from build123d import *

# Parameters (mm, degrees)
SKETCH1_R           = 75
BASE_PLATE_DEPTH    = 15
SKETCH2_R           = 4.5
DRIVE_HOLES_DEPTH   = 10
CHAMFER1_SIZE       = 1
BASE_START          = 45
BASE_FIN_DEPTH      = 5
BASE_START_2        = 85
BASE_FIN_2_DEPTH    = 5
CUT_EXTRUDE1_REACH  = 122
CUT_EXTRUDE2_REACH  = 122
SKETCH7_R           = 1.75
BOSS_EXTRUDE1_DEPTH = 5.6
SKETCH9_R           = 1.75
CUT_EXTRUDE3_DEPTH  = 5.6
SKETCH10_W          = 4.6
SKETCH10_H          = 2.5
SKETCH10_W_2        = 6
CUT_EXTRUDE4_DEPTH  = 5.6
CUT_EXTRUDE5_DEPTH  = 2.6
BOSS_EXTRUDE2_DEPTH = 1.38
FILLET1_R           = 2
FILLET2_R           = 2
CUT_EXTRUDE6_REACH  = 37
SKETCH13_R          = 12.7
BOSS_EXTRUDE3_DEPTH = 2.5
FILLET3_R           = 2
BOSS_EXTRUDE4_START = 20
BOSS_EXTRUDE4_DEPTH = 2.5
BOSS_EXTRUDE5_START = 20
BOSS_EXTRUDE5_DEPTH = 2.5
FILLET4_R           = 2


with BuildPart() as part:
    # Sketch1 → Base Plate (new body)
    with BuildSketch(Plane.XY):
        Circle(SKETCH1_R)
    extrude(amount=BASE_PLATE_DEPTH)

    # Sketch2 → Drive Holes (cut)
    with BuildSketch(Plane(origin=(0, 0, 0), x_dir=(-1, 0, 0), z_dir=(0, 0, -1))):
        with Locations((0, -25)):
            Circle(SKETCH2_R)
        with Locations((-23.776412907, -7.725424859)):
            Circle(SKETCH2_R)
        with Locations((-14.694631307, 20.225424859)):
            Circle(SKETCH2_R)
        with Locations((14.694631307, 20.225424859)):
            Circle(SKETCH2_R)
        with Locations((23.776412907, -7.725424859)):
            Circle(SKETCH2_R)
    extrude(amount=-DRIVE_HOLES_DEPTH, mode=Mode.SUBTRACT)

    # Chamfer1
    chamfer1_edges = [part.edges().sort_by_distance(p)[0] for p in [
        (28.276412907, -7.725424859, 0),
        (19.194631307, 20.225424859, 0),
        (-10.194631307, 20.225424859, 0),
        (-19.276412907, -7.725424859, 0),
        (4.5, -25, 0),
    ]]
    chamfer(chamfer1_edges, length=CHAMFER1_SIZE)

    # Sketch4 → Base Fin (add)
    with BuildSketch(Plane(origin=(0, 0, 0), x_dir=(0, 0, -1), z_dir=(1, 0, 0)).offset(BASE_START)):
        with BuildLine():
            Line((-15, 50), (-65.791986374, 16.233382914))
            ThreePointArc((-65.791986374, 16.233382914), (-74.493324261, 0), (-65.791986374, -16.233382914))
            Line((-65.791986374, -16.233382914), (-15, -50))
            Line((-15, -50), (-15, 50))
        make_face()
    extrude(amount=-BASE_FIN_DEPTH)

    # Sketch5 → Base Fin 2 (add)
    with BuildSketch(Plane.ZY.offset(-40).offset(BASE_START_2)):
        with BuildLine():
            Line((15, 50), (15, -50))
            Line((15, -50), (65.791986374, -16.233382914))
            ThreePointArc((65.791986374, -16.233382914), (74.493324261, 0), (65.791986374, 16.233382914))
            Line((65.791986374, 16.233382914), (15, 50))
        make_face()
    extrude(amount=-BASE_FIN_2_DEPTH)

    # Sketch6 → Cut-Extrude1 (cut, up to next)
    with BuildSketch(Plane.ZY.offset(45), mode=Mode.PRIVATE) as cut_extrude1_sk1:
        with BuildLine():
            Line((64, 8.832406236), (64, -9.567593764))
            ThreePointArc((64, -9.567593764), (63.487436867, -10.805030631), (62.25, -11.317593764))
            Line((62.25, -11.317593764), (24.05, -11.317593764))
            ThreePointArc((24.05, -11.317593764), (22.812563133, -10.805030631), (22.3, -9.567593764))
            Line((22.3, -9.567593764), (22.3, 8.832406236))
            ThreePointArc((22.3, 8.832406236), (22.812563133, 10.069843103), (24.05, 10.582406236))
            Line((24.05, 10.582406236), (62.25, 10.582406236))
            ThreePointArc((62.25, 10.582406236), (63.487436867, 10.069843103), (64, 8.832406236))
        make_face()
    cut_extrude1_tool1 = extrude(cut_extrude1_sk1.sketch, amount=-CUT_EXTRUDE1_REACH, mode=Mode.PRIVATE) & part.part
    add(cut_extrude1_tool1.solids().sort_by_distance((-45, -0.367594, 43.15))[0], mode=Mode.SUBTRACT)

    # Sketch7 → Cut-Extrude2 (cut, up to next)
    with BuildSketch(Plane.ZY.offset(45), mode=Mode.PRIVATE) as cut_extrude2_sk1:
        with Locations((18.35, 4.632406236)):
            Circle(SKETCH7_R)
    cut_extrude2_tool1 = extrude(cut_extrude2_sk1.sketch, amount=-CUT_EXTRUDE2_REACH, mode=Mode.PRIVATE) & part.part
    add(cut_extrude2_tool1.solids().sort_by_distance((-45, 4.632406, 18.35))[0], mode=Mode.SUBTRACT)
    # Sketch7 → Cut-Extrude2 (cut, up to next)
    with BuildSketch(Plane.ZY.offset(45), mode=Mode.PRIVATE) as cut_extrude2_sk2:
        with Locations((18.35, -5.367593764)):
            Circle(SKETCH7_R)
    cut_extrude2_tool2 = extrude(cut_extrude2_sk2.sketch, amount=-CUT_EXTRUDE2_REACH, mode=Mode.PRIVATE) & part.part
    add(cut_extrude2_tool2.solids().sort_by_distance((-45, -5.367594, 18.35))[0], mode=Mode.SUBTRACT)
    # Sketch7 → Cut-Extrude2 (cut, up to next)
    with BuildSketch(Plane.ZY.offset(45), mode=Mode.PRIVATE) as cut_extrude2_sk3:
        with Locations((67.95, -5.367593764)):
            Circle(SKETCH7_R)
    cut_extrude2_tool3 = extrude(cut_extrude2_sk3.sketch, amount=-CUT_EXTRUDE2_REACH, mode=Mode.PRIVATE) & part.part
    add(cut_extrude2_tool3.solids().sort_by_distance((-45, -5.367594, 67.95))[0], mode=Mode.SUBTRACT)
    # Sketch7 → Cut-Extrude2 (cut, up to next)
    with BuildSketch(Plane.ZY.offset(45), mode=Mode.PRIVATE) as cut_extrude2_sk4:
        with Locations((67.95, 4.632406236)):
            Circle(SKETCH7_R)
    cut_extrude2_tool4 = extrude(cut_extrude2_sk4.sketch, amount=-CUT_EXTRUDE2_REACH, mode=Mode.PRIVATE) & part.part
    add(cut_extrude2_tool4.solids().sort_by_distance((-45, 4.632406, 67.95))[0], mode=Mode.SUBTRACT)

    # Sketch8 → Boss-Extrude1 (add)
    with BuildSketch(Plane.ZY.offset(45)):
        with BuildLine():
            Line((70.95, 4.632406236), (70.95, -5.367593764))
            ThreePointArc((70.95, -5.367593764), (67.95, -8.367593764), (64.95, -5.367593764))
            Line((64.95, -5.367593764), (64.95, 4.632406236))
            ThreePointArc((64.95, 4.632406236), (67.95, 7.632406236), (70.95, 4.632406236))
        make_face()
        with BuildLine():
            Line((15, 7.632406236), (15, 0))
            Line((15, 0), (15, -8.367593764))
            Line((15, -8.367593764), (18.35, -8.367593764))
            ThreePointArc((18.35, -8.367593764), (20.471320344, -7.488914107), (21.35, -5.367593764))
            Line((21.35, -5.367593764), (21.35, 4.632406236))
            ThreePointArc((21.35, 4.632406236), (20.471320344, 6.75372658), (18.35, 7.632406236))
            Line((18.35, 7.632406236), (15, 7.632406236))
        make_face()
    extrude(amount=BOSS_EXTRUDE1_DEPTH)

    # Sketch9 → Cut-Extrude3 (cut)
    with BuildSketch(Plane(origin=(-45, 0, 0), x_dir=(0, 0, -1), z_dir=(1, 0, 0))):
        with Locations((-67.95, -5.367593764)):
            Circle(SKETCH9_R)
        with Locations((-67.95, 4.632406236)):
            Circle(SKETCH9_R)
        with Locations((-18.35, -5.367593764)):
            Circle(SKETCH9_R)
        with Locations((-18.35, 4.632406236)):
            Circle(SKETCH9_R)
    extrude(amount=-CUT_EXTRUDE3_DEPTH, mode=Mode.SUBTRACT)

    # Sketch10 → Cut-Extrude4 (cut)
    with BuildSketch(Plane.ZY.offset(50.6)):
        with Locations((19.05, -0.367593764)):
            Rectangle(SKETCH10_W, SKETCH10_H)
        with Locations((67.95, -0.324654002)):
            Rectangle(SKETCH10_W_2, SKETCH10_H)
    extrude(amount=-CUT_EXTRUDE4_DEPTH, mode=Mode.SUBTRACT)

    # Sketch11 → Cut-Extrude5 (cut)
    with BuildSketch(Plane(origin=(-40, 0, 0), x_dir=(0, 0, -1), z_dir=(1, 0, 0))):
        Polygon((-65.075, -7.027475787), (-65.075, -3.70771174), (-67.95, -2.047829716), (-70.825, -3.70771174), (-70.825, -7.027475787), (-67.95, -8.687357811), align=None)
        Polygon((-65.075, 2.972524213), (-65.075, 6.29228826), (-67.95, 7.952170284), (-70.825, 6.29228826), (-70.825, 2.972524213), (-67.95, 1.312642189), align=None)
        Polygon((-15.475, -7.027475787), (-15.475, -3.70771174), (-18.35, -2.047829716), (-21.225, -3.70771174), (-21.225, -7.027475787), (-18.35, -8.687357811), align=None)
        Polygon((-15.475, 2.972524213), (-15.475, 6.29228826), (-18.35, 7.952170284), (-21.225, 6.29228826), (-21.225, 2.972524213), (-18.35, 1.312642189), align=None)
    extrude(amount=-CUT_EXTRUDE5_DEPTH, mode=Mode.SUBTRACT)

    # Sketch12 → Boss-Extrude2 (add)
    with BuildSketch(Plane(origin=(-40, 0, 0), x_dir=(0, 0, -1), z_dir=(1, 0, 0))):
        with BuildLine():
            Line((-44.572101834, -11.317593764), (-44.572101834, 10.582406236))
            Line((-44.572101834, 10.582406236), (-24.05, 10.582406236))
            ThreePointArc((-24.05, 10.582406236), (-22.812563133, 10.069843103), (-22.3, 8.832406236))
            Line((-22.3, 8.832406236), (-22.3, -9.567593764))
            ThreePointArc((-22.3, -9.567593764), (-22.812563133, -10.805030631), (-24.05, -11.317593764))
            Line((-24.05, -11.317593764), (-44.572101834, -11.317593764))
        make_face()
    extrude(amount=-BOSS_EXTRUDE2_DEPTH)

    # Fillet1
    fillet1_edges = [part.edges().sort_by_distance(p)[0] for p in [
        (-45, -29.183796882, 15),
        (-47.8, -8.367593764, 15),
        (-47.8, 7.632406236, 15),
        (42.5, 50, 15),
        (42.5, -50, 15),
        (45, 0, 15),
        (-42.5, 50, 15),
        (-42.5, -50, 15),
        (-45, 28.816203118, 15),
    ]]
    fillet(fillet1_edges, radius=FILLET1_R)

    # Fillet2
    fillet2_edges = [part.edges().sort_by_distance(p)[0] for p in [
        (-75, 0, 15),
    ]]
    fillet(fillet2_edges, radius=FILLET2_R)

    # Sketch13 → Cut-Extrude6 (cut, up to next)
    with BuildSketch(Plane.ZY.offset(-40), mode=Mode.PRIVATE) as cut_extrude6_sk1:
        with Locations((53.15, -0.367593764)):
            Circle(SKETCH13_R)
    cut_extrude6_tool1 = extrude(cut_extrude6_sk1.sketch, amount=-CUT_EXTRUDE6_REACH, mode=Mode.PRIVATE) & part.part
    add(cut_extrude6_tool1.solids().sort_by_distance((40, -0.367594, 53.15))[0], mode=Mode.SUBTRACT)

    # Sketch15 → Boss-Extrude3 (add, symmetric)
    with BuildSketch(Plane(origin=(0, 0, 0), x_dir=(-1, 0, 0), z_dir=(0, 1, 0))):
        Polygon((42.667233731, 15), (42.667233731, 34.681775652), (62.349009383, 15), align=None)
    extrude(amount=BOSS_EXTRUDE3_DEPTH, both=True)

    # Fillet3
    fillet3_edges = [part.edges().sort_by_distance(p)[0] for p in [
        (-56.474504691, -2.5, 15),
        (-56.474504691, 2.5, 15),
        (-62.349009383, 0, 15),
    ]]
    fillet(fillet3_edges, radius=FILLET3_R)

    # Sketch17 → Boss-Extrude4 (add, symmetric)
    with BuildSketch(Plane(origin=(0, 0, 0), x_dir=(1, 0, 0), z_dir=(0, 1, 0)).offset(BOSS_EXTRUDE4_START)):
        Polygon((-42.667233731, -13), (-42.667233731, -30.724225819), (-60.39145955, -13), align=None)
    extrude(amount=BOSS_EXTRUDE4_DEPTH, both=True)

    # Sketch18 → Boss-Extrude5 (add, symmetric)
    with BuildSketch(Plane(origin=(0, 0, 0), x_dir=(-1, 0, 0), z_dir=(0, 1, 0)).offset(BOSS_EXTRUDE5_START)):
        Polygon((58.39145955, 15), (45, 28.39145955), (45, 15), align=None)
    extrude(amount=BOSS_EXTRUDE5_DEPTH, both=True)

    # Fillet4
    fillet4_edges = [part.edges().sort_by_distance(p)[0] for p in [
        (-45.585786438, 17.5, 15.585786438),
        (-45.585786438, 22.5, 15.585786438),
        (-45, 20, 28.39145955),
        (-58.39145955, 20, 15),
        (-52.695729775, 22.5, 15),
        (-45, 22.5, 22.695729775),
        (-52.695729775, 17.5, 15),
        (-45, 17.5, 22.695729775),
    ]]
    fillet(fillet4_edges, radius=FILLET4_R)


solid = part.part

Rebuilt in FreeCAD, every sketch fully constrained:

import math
import FreeCAD as App
import Part
import Sketcher

V = App.Vector
Q = App.Units.Quantity


def edges_at(feature, points):
    """Names of the edges that pass closest to the given points."""
    edges = feature.Shape.Edges
    near = lambda p: min(range(len(edges)), key=lambda i: edges[i].distToShape(Part.Vertex(*p))[0])
    return sorted({f"Edge{near(p) + 1}" for p in points})

doc = App.newDocument("Part")
body = doc.addObject("PartDesign::Body", "Body")

sketch1 = body.newObject("Sketcher::SketchObject", "Sketch")
sketch1.AttachmentSupport = (doc.getObject("XY_Plane"), [""])
sketch1.MapMode = "FlatFace"
sketch1.addGeometry(Part.Circle(V(0, 0, 0), V(0, 0, 1), 75), False)
sketch1.addConstraint([
    Sketcher.Constraint("Coincident", 0, 3, -1, 1),
    Sketcher.Constraint("Diameter", 0, 150.0),
])
pad1 = body.newObject("PartDesign::Pad", "Pad")
pad1.Profile = sketch1
pad1.Length = 15

sketch2 = body.newObject("Sketcher::SketchObject", "Sketch001")
sketch2.AttachmentSupport = (doc.getObject("XY_Plane"), [""])
sketch2.MapMode = "FlatFace"
sketch2.addGeometry([
    Part.Circle(V(0, -25, 0), V(0, 0, 1), 4.5),
    Part.Circle(V(23.8, -7.7, 0), V(0, 0, 1), 4.5),
    Part.Circle(V(14.7, 20.2, 0), V(0, 0, 1), 4.5),
    Part.Circle(V(-14.7, 20.2, 0), V(0, 0, 1), 4.5),
    Part.Circle(V(-23.8, -7.7, 0), V(0, 0, 1), 4.5),
], False)
sketch2.addConstraint([
    Sketcher.Constraint("Equal", 0, 1),
    Sketcher.Constraint("Equal", 1, 2),
    Sketcher.Constraint("Equal", 2, 3),
    Sketcher.Constraint("Equal", 3, 4),
    Sketcher.Constraint("Symmetric", 2, 3, 3, 3, -2),
    Sketcher.Constraint("Symmetric", 1, 3, 4, 3, -2),
    Sketcher.Constraint("PointOnObject", 0, 3, -2),
    Sketcher.Constraint("Diameter", 0, 9.0),
    Sketcher.Constraint("DistanceY", 0, 3, -1, 1, 25.0),
    Sketcher.Constraint("DistanceX", -1, 1, 2, 3, 14.694631),
    Sketcher.Constraint("DistanceX", 2, 3, 1, 3, 9.081782),
    Sketcher.Constraint("DistanceY", 1, 3, 2, 3, 27.95085),
    Sketcher.Constraint("DistanceY", 1, 3, -1, 1, 7.725425),
])
pocket1 = body.newObject("PartDesign::Pocket", "Pocket")
pocket1.Profile = sketch2
pocket1.Length = 10
pocket1.Reversed = True
doc.recompute()

chamfer = body.newObject("PartDesign::Chamfer", "Chamfer")
chamfer.Base = (pocket1, edges_at(pocket1, [
    (28.276, -7.725, 0),
    (19.195, 20.225, 0),
    (-10.195, 20.225, 0),
    (-19.276, -7.725, 0),
    (4.5, -25, 0),
]))
chamfer.Size = 1

sketch3 = body.newObject("Sketcher::SketchObject", "Sketch002")
sketch3.AttachmentSupport = (doc.getObject("YZ_Plane"), [""])
sketch3.MapMode = "FlatFace"
sketch3.AttachmentOffset = App.Placement(V(0, 0, 45), App.Rotation())
sketch3.addGeometry([
    Part.LineSegment(V(50, 15, 0), V(16, 66, 0)),
    Part.ArcOfCircle(Part.Circle(V(0, 55, 0), V(0, 0, 1), 19), math.radians(34), math.radians(146)),
    Part.LineSegment(V(-16, 66, 0), V(-50, 15, 0)),
    Part.LineSegment(V(-50, 15, 0), V(50, 15, 0)),
], False)
sketch3.addConstraint([
    Sketcher.Constraint("Tangent", 0, 2, 1, 1),
    Sketcher.Constraint("Tangent", 1, 2, 2, 1),
    Sketcher.Constraint("Coincident", 2, 2, 3, 1),
    Sketcher.Constraint("Coincident", 3, 2, 0, 1),
    Sketcher.Constraint("Horizontal", 3),
    Sketcher.Constraint("Symmetric", 0, 2, 1, 2, -2),
    Sketcher.Constraint("DistanceX", 3, 1, 3, 2, 100.0),
    Sketcher.Constraint("DistanceY", -1, 1, 1, 3, 55.0),
    Sketcher.Constraint("DistanceY", -1, 1, 2, 2, 15.0),
    Sketcher.Constraint("Radius", 1, 19.493324),
])
pad2 = body.newObject("PartDesign::Pad", "Pad001")
pad2.Profile = sketch3
pad2.Length = 5
pad2.Reversed = True

sketch4 = body.newObject("Sketcher::SketchObject", "Sketch003")
sketch4.AttachmentSupport = (doc.getObject("YZ_Plane"), [""])
sketch4.MapMode = "FlatFace"
sketch4.AttachmentOffset = App.Placement(V(0, 0, -45), App.Rotation())
sketch4.addGeometry([
    Part.LineSegment(V(50, 15, 0), V(-50, 15, 0)),
    Part.LineSegment(V(-50, 15, 0), V(-16, 66, 0)),
    Part.ArcOfCircle(Part.Circle(V(0, 55, 0), V(0, 0, 1), 19), math.radians(34), math.radians(146)),
    Part.LineSegment(V(16, 66, 0), V(50, 15, 0)),
], False)
sketch4.addConstraint([
    Sketcher.Constraint("Coincident", 0, 2, 1, 1),
    Sketcher.Constraint("Tangent", 1, 2, 2, 2),
    Sketcher.Constraint("Tangent", 2, 1, 3, 1),
    Sketcher.Constraint("Coincident", 3, 2, 0, 1),
    Sketcher.Constraint("Horizontal", 0),
    Sketcher.Constraint("Symmetric", 1, 2, 2, 1, -2),
    Sketcher.Constraint("DistanceX", 0, 2, 0, 1, 100.0),
    Sketcher.Constraint("DistanceY", -1, 1, 2, 3, 55.0),
    Sketcher.Constraint("DistanceY", -1, 1, 0, 2, 15.0),
    Sketcher.Constraint("Radius", 2, 19.493324),
])
pad3 = body.newObject("PartDesign::Pad", "Pad002")
pad3.Profile = sketch4
pad3.Length = 5

sketch5 = body.newObject("Sketcher::SketchObject", "Sketch004")
sketch5.AttachmentSupport = (doc.getObject("YZ_Plane"), [""])
sketch5.MapMode = "FlatFace"
sketch5.AttachmentOffset = App.Placement(V(0, 0, -45), App.Rotation())
sketch5.addGeometry([
    Part.LineSegment(V(-9.6, 64, 0), V(8.8, 64, 0)),
    Part.ArcOfCircle(Part.Circle(V(8.8, 62.2, 0), V(0, 0, 1), 1.8), math.radians(0), math.radians(90)),
    Part.LineSegment(V(10.6, 62.2, 0), V(10.6, 24.1, 0)),
    Part.ArcOfCircle(Part.Circle(V(8.8, 24.1, 0), V(0, 0, 1), 1.8), math.radians(-90), math.radians(0)),
    Part.LineSegment(V(8.8, 22.3, 0), V(-9.6, 22.3, 0)),
    Part.ArcOfCircle(Part.Circle(V(-9.6, 24.1, 0), V(0, 0, 1), 1.8), math.radians(180), math.radians(270)),
    Part.LineSegment(V(-11.3, 24.1, 0), V(-11.3, 62.2, 0)),
    Part.ArcOfCircle(Part.Circle(V(-9.6, 62.2, 0), V(0, 0, 1), 1.8), math.radians(90), math.radians(180)),
], False)
sketch5.addConstraint([
    Sketcher.Constraint("Tangent", 0, 2, 1, 2),
    Sketcher.Constraint("Tangent", 1, 1, 2, 1),
    Sketcher.Constraint("Tangent", 2, 2, 3, 2),
    Sketcher.Constraint("Tangent", 3, 1, 4, 1),
    Sketcher.Constraint("Tangent", 4, 2, 5, 2),
    Sketcher.Constraint("Tangent", 5, 1, 6, 1),
    Sketcher.Constraint("Tangent", 6, 2, 7, 2),
    Sketcher.Constraint("Tangent", 7, 1, 0, 1),
    Sketcher.Constraint("Horizontal", 0),
    Sketcher.Constraint("Vertical", 2),
    Sketcher.Constraint("Horizontal", 4),
    Sketcher.Constraint("Vertical", 6),
    Sketcher.Constraint("Equal", 1, 3),
    Sketcher.Constraint("Equal", 3, 5),
    Sketcher.Constraint("Equal", 5, 7),
    Sketcher.Constraint("Radius", 1, 1.75),
    Sketcher.Constraint("DistanceX", 0, 1, 0, 2, 18.4),
    Sketcher.Constraint("DistanceY", 2, 2, 2, 1, 38.2),
    Sketcher.Constraint("DistanceY", -1, 1, 0, 2, 64.0),
    Sketcher.Constraint("DistanceX", -1, 1, 1, 3, 8.832406),
])
pocket2 = body.newObject("PartDesign::Pocket", "Pocket001")
pocket2.Profile = sketch5
pocket2.Type = "UpToFirst"
pocket2.Reversed = True

sketch6 = body.newObject("Sketcher::SketchObject", "Sketch005")
sketch6.AttachmentSupport = (doc.getObject("YZ_Plane"), [""])
sketch6.MapMode = "FlatFace"
sketch6.AttachmentOffset = App.Placement(V(0, 0, -45), App.Rotation())
sketch6.addGeometry(Part.Circle(V(4.6, 18.4, 0), V(0, 0, 1), 1.8), False)
sketch6.addConstraint([
    Sketcher.Constraint("Diameter", 0, 3.5),
    Sketcher.Constraint("DistanceY", -1, 1, 0, 3, 18.35),
    Sketcher.Constraint("DistanceX", -1, 1, 0, 3, 4.632406),
])
pocket3 = body.newObject("PartDesign::Pocket", "Pocket002")
pocket3.Profile = sketch6
pocket3.Type = "UpToFirst"
pocket3.Reversed = True

sketch7 = body.newObject("Sketcher::SketchObject", "Sketch006")
sketch7.AttachmentSupport = (doc.getObject("YZ_Plane"), [""])
sketch7.MapMode = "FlatFace"
sketch7.AttachmentOffset = App.Placement(V(0, 0, -45), App.Rotation())
sketch7.addGeometry(Part.Circle(V(-5.4, 18.4, 0), V(0, 0, 1), 1.8), False)
sketch7.addConstraint([
    Sketcher.Constraint("Diameter", 0, 3.5),
    Sketcher.Constraint("DistanceY", -1, 1, 0, 3, 18.35),
    Sketcher.Constraint("DistanceX", 0, 3, -1, 1, 5.367594),
])
pocket4 = body.newObject("PartDesign::Pocket", "Pocket003")
pocket4.Profile = sketch7
pocket4.Type = "UpToFirst"
pocket4.Reversed = True

sketch8 = body.newObject("Sketcher::SketchObject", "Sketch007")
sketch8.AttachmentSupport = (doc.getObject("YZ_Plane"), [""])
sketch8.MapMode = "FlatFace"
sketch8.AttachmentOffset = App.Placement(V(0, 0, -45), App.Rotation())
sketch8.addGeometry(Part.Circle(V(-5.4, 68, 0), V(0, 0, 1), 1.8), False)
sketch8.addConstraint([
    Sketcher.Constraint("Diameter", 0, 3.5),
    Sketcher.Constraint("DistanceY", -1, 1, 0, 3, 67.95),
    Sketcher.Constraint("DistanceX", 0, 3, -1, 1, 5.367594),
])
pocket5 = body.newObject("PartDesign::Pocket", "Pocket004")
pocket5.Profile = sketch8
pocket5.Type = "UpToFirst"
pocket5.Reversed = True

sketch9 = body.newObject("Sketcher::SketchObject", "Sketch008")
sketch9.AttachmentSupport = (doc.getObject("YZ_Plane"), [""])
sketch9.MapMode = "FlatFace"
sketch9.AttachmentOffset = App.Placement(V(0, 0, -45), App.Rotation())
sketch9.addGeometry(Part.Circle(V(4.6, 68, 0), V(0, 0, 1), 1.8), False)
sketch9.addConstraint([
    Sketcher.Constraint("Diameter", 0, 3.5),
    Sketcher.Constraint("DistanceY", -1, 1, 0, 3, 67.95),
    Sketcher.Constraint("DistanceX", -1, 1, 0, 3, 4.632406),
])
pocket6 = body.newObject("PartDesign::Pocket", "Pocket005")
pocket6.Profile = sketch9
pocket6.Type = "UpToFirst"
pocket6.Reversed = True

sketch10 = body.newObject("Sketcher::SketchObject", "Sketch009")
sketch10.AttachmentSupport = (doc.getObject("YZ_Plane"), [""])
sketch10.MapMode = "FlatFace"
sketch10.AttachmentOffset = App.Placement(V(0, 0, -45), App.Rotation())
sketch10.addGeometry([
    Part.LineSegment(V(-5.4, 71, 0), V(4.6, 71, 0)),
    Part.ArcOfCircle(Part.Circle(V(4.6, 68, 0), V(0, 0, 1), 3), math.radians(-90), math.radians(90)),
    Part.LineSegment(V(4.6, 65, 0), V(-5.4, 65, 0)),
    Part.ArcOfCircle(Part.Circle(V(-5.4, 68, 0), V(0, 0, 1), 3), math.radians(90), math.radians(270)),
    Part.LineSegment(V(7.6, 15, 0), V(-8.4, 15, 0)),
    Part.LineSegment(V(-8.4, 15, 0), V(-8.4, 18.4, 0)),
    Part.ArcOfCircle(Part.Circle(V(-5.4, 18.4, 0), V(0, 0, 1), 3), math.radians(90), math.radians(180)),
    Part.LineSegment(V(-5.4, 21.4, 0), V(4.6, 21.4, 0)),
    Part.ArcOfCircle(Part.Circle(V(4.6, 18.4, 0), V(0, 0, 1), 3), math.radians(0), math.radians(90)),
    Part.LineSegment(V(7.6, 18.4, 0), V(7.6, 15, 0)),
], False)
sketch10.addConstraint([
    Sketcher.Constraint("Tangent", 0, 2, 1, 2),
    Sketcher.Constraint("Tangent", 1, 1, 2, 1),
    Sketcher.Constraint("Tangent", 2, 2, 3, 2),
    Sketcher.Constraint("Tangent", 3, 1, 0, 1),
    Sketcher.Constraint("Coincident", 4, 2, 5, 1),
    Sketcher.Constraint("Tangent", 5, 2, 6, 2),
    Sketcher.Constraint("Tangent", 6, 1, 7, 1),
    Sketcher.Constraint("Tangent", 7, 2, 8, 2),
    Sketcher.Constraint("Tangent", 8, 1, 9, 1),
    Sketcher.Constraint("Coincident", 9, 2, 4, 1),
    Sketcher.Constraint("Horizontal", 0),
    Sketcher.Constraint("Horizontal", 2),
    Sketcher.Constraint("Horizontal", 4),
    Sketcher.Constraint("Vertical", 5),
    Sketcher.Constraint("Horizontal", 7),
    Sketcher.Constraint("Vertical", 9),
    Sketcher.Constraint("Equal", 3, 6),
    Sketcher.Constraint("Equal", 6, 8),
    Sketcher.Constraint("Vertical", 3, 3, 6, 3),
    Sketcher.Constraint("Vertical", 1, 3, 8, 3),
    Sketcher.Constraint("Radius", 1, 3.0),
    Sketcher.Constraint("DistanceX", 0, 1, 0, 2, 10.0),
    Sketcher.Constraint("DistanceY", -1, 1, 4, 2, 15.0),
    Sketcher.Constraint("DistanceY", 5, 1, 5, 2, 3.35),
    Sketcher.Constraint("DistanceY", 6, 3, 3, 3, 49.6),
    Sketcher.Constraint("DistanceX", -1, 1, 1, 3, 4.632406),
])
pad4 = body.newObject("PartDesign::Pad", "Pad003")
pad4.Profile = sketch10
pad4.Length = 5.6
pad4.Reversed = True

sketch11 = body.newObject("Sketcher::SketchObject", "Sketch010")
sketch11.AttachmentSupport = (doc.getObject("YZ_Plane"), [""])
sketch11.MapMode = "FlatFace"
sketch11.AttachmentOffset = App.Placement(V(0, 0, -45), App.Rotation())
sketch11.addGeometry([
    Part.Circle(V(-5.4, 68, 0), V(0, 0, 1), 1.8),
    Part.Circle(V(4.6, 68, 0), V(0, 0, 1), 1.8),
    Part.Circle(V(-5.4, 18.4, 0), V(0, 0, 1), 1.8),
    Part.Circle(V(4.6, 18.4, 0), V(0, 0, 1), 1.8),
], False)
sketch11.addConstraint([
    Sketcher.Constraint("Equal", 0, 1),
    Sketcher.Constraint("Equal", 1, 2),
    Sketcher.Constraint("Equal", 2, 3),
    Sketcher.Constraint("Horizontal", 0, 3, 1, 3),
    Sketcher.Constraint("Horizontal", 2, 3, 3, 3),
    Sketcher.Constraint("Vertical", 0, 3, 2, 3),
    Sketcher.Constraint("Vertical", 1, 3, 3, 3),
    Sketcher.Constraint("Diameter", 0, 3.5),
    Sketcher.Constraint("DistanceX", 0, 3, 1, 3, 10.0),
    Sketcher.Constraint("DistanceY", 2, 3, 0, 3, 49.6),
    Sketcher.Constraint("DistanceY", -1, 1, 0, 3, 67.95),
    Sketcher.Constraint("DistanceX", 0, 3, -1, 1, 5.367594),
])
pocket7 = body.newObject("PartDesign::Pocket", "Pocket006")
pocket7.Profile = sketch11
pocket7.Length = 5.6

sketch12 = body.newObject("Sketcher::SketchObject", "Sketch011")
sketch12.AttachmentSupport = (doc.getObject("YZ_Plane"), [""])
sketch12.MapMode = "FlatFace"
sketch12.AttachmentOffset = App.Placement(V(0, 0, -50.6), App.Rotation())
sketch12.addGeometry([
    Part.LineSegment(V(0.9, 16.8, 0), V(-1.6, 16.8, 0)),
    Part.LineSegment(V(-1.6, 16.8, 0), V(-1.6, 21.4, 0)),
    Part.LineSegment(V(-1.6, 21.4, 0), V(0.9, 21.4, 0)),
    Part.LineSegment(V(0.9, 21.4, 0), V(0.9, 16.8, 0)),
    Part.LineSegment(V(0.9, 65, 0), V(-1.6, 65, 0)),
    Part.LineSegment(V(-1.6, 65, 0), V(-1.6, 71, 0)),
    Part.LineSegment(V(-1.6, 71, 0), V(0.9, 71, 0)),
    Part.LineSegment(V(0.9, 71, 0), V(0.9, 65, 0)),
], False)
sketch12.addConstraint([
    Sketcher.Constraint("Coincident", 0, 2, 1, 1),
    Sketcher.Constraint("Coincident", 1, 2, 2, 1),
    Sketcher.Constraint("Coincident", 2, 2, 3, 1),
    Sketcher.Constraint("Coincident", 3, 2, 0, 1),
    Sketcher.Constraint("Coincident", 4, 2, 5, 1),
    Sketcher.Constraint("Coincident", 5, 2, 6, 1),
    Sketcher.Constraint("Coincident", 6, 2, 7, 1),
    Sketcher.Constraint("Coincident", 7, 2, 4, 1),
    Sketcher.Constraint("Horizontal", 0),
    Sketcher.Constraint("Vertical", 1),
    Sketcher.Constraint("Horizontal", 2),
    Sketcher.Constraint("Vertical", 3),
    Sketcher.Constraint("Horizontal", 4),
    Sketcher.Constraint("Vertical", 5),
    Sketcher.Constraint("Horizontal", 6),
    Sketcher.Constraint("Vertical", 7),
    Sketcher.Constraint("Equal", 2, 4),
    Sketcher.Constraint("DistanceY", 5, 1, 5, 2, 6.0),
    Sketcher.Constraint("DistanceX", 0, 2, 0, 1, 2.5),
    Sketcher.Constraint("DistanceY", 1, 1, 1, 2, 4.6),
    Sketcher.Constraint("DistanceY", 1, 2, 4, 2, 43.6),
    Sketcher.Constraint("DistanceY", -1, 1, 0, 2, 16.75),
    Sketcher.Constraint("DistanceX", 1, 2, 4, 2, 0.04294),
    Sketcher.Constraint("DistanceX", 0, 2, -1, 1, 1.617594),
])
pocket8 = body.newObject("PartDesign::Pocket", "Pocket007")
pocket8.Profile = sketch12
pocket8.Length = 5.6
pocket8.Reversed = True

sketch13 = body.newObject("Sketcher::SketchObject", "Sketch012")
sketch13.AttachmentSupport = (doc.getObject("YZ_Plane"), [""])
sketch13.MapMode = "FlatFace"
sketch13.AttachmentOffset = App.Placement(V(0, 0, -40), App.Rotation())
sketch13.addGeometry([
    Part.LineSegment(V(-7, 65.1, 0), V(-3.7, 65.1, 0)),
    Part.LineSegment(V(-3.7, 65.1, 0), V(-2, 68, 0)),
    Part.LineSegment(V(-2, 68, 0), V(-3.7, 70.8, 0)),
    Part.LineSegment(V(-3.7, 70.8, 0), V(-7, 70.8, 0)),
    Part.LineSegment(V(-7, 70.8, 0), V(-8.7, 68, 0)),
    Part.LineSegment(V(-8.7, 68, 0), V(-7, 65.1, 0)),
    Part.LineSegment(V(3, 65.1, 0), V(6.3, 65.1, 0)),
    Part.LineSegment(V(6.3, 65.1, 0), V(8, 68, 0)),
    Part.LineSegment(V(8, 68, 0), V(6.3, 70.8, 0)),
    Part.LineSegment(V(6.3, 70.8, 0), V(3, 70.8, 0)),
    Part.LineSegment(V(3, 70.8, 0), V(1.3, 68, 0)),
    Part.LineSegment(V(1.3, 68, 0), V(3, 65.1, 0)),
    Part.LineSegment(V(-7, 15.5, 0), V(-3.7, 15.5, 0)),
    Part.LineSegment(V(-3.7, 15.5, 0), V(-2, 18.4, 0)),
    Part.LineSegment(V(-2, 18.4, 0), V(-3.7, 21.2, 0)),
    Part.LineSegment(V(-3.7, 21.2, 0), V(-7, 21.2, 0)),
    Part.LineSegment(V(-7, 21.2, 0), V(-8.7, 18.4, 0)),
    Part.LineSegment(V(-8.7, 18.4, 0), V(-7, 15.5, 0)),
    Part.LineSegment(V(3, 15.5, 0), V(6.3, 15.5, 0)),
    Part.LineSegment(V(6.3, 15.5, 0), V(8, 18.4, 0)),
    Part.LineSegment(V(8, 18.4, 0), V(6.3, 21.2, 0)),
    Part.LineSegment(V(6.3, 21.2, 0), V(3, 21.2, 0)),
    Part.LineSegment(V(3, 21.2, 0), V(1.3, 18.4, 0)),
    Part.LineSegment(V(1.3, 18.4, 0), V(3, 15.5, 0)),
], False)
sketch13.addConstraint([
    Sketcher.Constraint("Coincident", 0, 2, 1, 1),
    Sketcher.Constraint("Coincident", 1, 2, 2, 1),
    Sketcher.Constraint("Coincident", 2, 2, 3, 1),
    Sketcher.Constraint("Coincident", 3, 2, 4, 1),
    Sketcher.Constraint("Coincident", 4, 2, 5, 1),
    Sketcher.Constraint("Coincident", 5, 2, 0, 1),
    Sketcher.Constraint("Coincident", 6, 2, 7, 1),
    Sketcher.Constraint("Coincident", 7, 2, 8, 1),
    Sketcher.Constraint("Coincident", 8, 2, 9, 1),
    Sketcher.Constraint("Coincident", 9, 2, 10, 1),
    Sketcher.Constraint("Coincident", 10, 2, 11, 1),
    Sketcher.Constraint("Coincident", 11, 2, 6, 1),
    Sketcher.Constraint("Coincident", 12, 2, 13, 1),
    Sketcher.Constraint("Coincident", 13, 2, 14, 1),
    Sketcher.Constraint("Coincident", 14, 2, 15, 1),
    Sketcher.Constraint("Coincident", 15, 2, 16, 1),
    Sketcher.Constraint("Coincident", 16, 2, 17, 1),
    Sketcher.Constraint("Coincident", 17, 2, 12, 1),
    Sketcher.Constraint("Coincident", 18, 2, 19, 1),
    Sketcher.Constraint("Coincident", 19, 2, 20, 1),
    Sketcher.Constraint("Coincident", 20, 2, 21, 1),
    Sketcher.Constraint("Coincident", 21, 2, 22, 1),
    Sketcher.Constraint("Coincident", 22, 2, 23, 1),
    Sketcher.Constraint("Coincident", 23, 2, 18, 1),
    Sketcher.Constraint("Horizontal", 0),
    Sketcher.Constraint("Horizontal", 3),
    Sketcher.Constraint("Horizontal", 6),
    Sketcher.Constraint("Horizontal", 9),
    Sketcher.Constraint("Horizontal", 12),
    Sketcher.Constraint("Horizontal", 15),
    Sketcher.Constraint("Horizontal", 18),
    Sketcher.Constraint("Horizontal", 21),
    Sketcher.Constraint("Parallel", 1, 4),
    Sketcher.Constraint("Parallel", 2, 5),
    Sketcher.Constraint("Parallel", 4, 7),
    Sketcher.Constraint("Parallel", 5, 8),
    Sketcher.Constraint("Parallel", 7, 10),
    Sketcher.Constraint("Parallel", 8, 11),
    Sketcher.Constraint("Parallel", 10, 13),
    Sketcher.Constraint("Parallel", 11, 14),
    Sketcher.Constraint("Parallel", 13, 16),
    Sketcher.Constraint("Parallel", 14, 17),
    Sketcher.Constraint("Parallel", 16, 19),
    Sketcher.Constraint("Parallel", 17, 20),
    Sketcher.Constraint("Parallel", 19, 22),
    Sketcher.Constraint("Parallel", 20, 23),
    Sketcher.Constraint("Horizontal", 1, 2, 4, 2),
    Sketcher.Constraint("Horizontal", 5, 2, 6, 2),
    Sketcher.Constraint("Horizontal", 4, 2, 7, 2),
    Sketcher.Constraint("Horizontal", 3, 2, 8, 2),
    Sketcher.Constraint("Horizontal", 7, 2, 10, 2),
    Sketcher.Constraint("Horizontal", 13, 2, 16, 2),
    Sketcher.Constraint("Horizontal", 17, 2, 18, 2),
    Sketcher.Constraint("Horizontal", 16, 2, 19, 2),
    Sketcher.Constraint("Horizontal", 15, 2, 20, 2),
    Sketcher.Constraint("Horizontal", 19, 2, 22, 2),
    Sketcher.Constraint("Vertical", 0, 2, 2, 2),
    Sketcher.Constraint("Vertical", 3, 2, 5, 2),
    Sketcher.Constraint("Vertical", 2, 2, 12, 2),
    Sketcher.Constraint("Vertical", 1, 2, 13, 2),
    Sketcher.Constraint("Vertical", 12, 2, 14, 2),
    Sketcher.Constraint("Vertical", 5, 2, 15, 2),
    Sketcher.Constraint("Vertical", 8, 2, 18, 2),
    Sketcher.Constraint("Vertical", 11, 2, 21, 2),
    Sketcher.Constraint("Equal", 3, 6),
    Sketcher.Constraint("Angle", 1, Q("60 deg")),
    Sketcher.Constraint("DistanceX", 0, 2, 6, 2, 10.0),
    Sketcher.Constraint("DistanceY", 12, 2, 0, 2, 49.6),
    Sketcher.Constraint("DistanceY", -1, 1, 1, 2, 67.95),
    Sketcher.Constraint("DistanceY", 0, 2, 2, 2, 5.75),
    Sketcher.Constraint("DistanceX", 0, 1, 0, 2, 3.319764),
    Sketcher.Constraint("DistanceX", 0, 2, -1, 1, 3.707712),
])
pocket9 = body.newObject("PartDesign::Pocket", "Pocket008")
pocket9.Profile = sketch13
pocket9.Length = 2.6

sketch14 = body.newObject("Sketcher::SketchObject", "Sketch013")
sketch14.AttachmentSupport = (doc.getObject("YZ_Plane"), [""])
sketch14.MapMode = "FlatFace"
sketch14.AttachmentOffset = App.Placement(V(0, 0, -40), App.Rotation())
sketch14.addGeometry([
    Part.LineSegment(V(10.6, 44.6, 0), V(-11.3, 44.6, 0)),
    Part.LineSegment(V(-11.3, 44.6, 0), V(-11.3, 24.1, 0)),
    Part.ArcOfCircle(Part.Circle(V(-9.6, 24.1, 0), V(0, 0, 1), 1.8), math.radians(180), math.radians(270)),
    Part.LineSegment(V(-9.6, 22.3, 0), V(8.8, 22.3, 0)),
    Part.ArcOfCircle(Part.Circle(V(8.8, 24.1, 0), V(0, 0, 1), 1.8), math.radians(-90), math.radians(0)),
    Part.LineSegment(V(10.6, 24.1, 0), V(10.6, 44.6, 0)),
], False)
sketch14.addConstraint([
    Sketcher.Constraint("Coincident", 0, 2, 1, 1),
    Sketcher.Constraint("Tangent", 1, 2, 2, 1),
    Sketcher.Constraint("Tangent", 2, 2, 3, 1),
    Sketcher.Constraint("Tangent", 3, 2, 4, 1),
    Sketcher.Constraint("Tangent", 4, 2, 5, 1),
    Sketcher.Constraint("Coincident", 5, 2, 0, 1),
    Sketcher.Constraint("Horizontal", 0),
    Sketcher.Constraint("Vertical", 1),
    Sketcher.Constraint("Horizontal", 3),
    Sketcher.Constraint("Vertical", 5),
    Sketcher.Constraint("Equal", 2, 4),
    Sketcher.Constraint("Radius", 2, 1.75),
    Sketcher.Constraint("DistanceX", 0, 2, 0, 1, 21.9),
    Sketcher.Constraint("DistanceY", -1, 1, 2, 2, 22.3),
    Sketcher.Constraint("DistanceY", 1, 2, 1, 1, 20.522102),
    Sketcher.Constraint("DistanceX", 2, 3, -1, 1, 9.567594),
])
pad5 = body.newObject("PartDesign::Pad", "Pad004")
pad5.Profile = sketch14
pad5.Length = 1.38
pad5.Reversed = True
doc.recompute()

fillet = body.newObject("PartDesign::Fillet", "Fillet")
fillet.Base = (pad5, edges_at(pad5, [
    (-45, -29.184, 15),
    (-47.8, -8.368, 15),
    (-47.8, 7.632, 15),
    (42.5, 50, 15),
    (42.5, -50, 15),
    (45, 0, 15),
    (-42.5, 50, 15),
    (-42.5, -50, 15),
    (-45, 28.816, 15),
]))
fillet.Radius = 2
doc.recompute()

fillet2 = body.newObject("PartDesign::Fillet", "Fillet001")
fillet2.Base = (fillet, edges_at(fillet, [(-75, 0, 15)]))
fillet2.Radius = 2

sketch15 = body.newObject("Sketcher::SketchObject", "Sketch014")
sketch15.AttachmentSupport = (doc.getObject("YZ_Plane"), [""])
sketch15.MapMode = "FlatFace"
sketch15.AttachmentOffset = App.Placement(V(0, 0, 40), App.Rotation())
sketch15.addGeometry(Part.Circle(V(0, 53, 0), V(0, 0, 1), 13), False)
sketch15.addConstraint([
    Sketcher.Constraint("Diameter", 0, 25.4),
    Sketcher.Constraint("DistanceY", -1, 1, 0, 3, 53.15),
    Sketcher.Constraint("DistanceX", 0, 3, -1, 1, 0.367594),
])
pocket10 = body.newObject("PartDesign::Pocket", "Pocket009")
pocket10.Profile = sketch15
pocket10.Type = "UpToFirst"
pocket10.Reversed = True

sketch16 = body.newObject("Sketcher::SketchObject", "Sketch015")
sketch16.AttachmentSupport = (doc.getObject("XZ_Plane"), [""])
sketch16.MapMode = "FlatFace"
sketch16.addGeometry([
    Part.LineSegment(V(-43, 35, 0), V(-43, 15, 0)),
    Part.LineSegment(V(-43, 15, 0), V(-62, 15, 0)),
    Part.LineSegment(V(-62, 15, 0), V(-43, 35, 0)),
], False)
sketch16.addConstraint([
    Sketcher.Constraint("Coincident", 0, 2, 1, 1),
    Sketcher.Constraint("Coincident", 1, 2, 2, 1),
    Sketcher.Constraint("Coincident", 2, 2, 0, 1),
    Sketcher.Constraint("Vertical", 0),
    Sketcher.Constraint("Horizontal", 1),
    Sketcher.Constraint("Equal", 1, 0),
    Sketcher.Constraint("DistanceY", -1, 1, 0, 2, 15.0),
    Sketcher.Constraint("DistanceX", 1, 2, 1, 1, 19.681776),
    Sketcher.Constraint("DistanceX", 1, 2, -1, 1, 62.349009),
])
pad6 = body.newObject("PartDesign::Pad", "Pad005")
pad6.Profile = sketch16
pad6.Length = 5
pad6.Midplane = True
doc.recompute()

fillet3 = body.newObject("PartDesign::Fillet", "Fillet002")
fillet3.Base = (pad6, edges_at(pad6, [(-56.475, -2.5, 15), (-56.475, 2.5, 15), (-62.349, 0, 15)]))
fillet3.Radius = 2

sketch17 = body.newObject("Sketcher::SketchObject", "Sketch016")
sketch17.AttachmentSupport = (doc.getObject("XZ_Plane"), [""])
sketch17.MapMode = "FlatFace"
sketch17.AttachmentOffset = App.Placement(V(0, 0, -20), App.Rotation())
sketch17.addGeometry([
    Part.LineSegment(V(-43, 31, 0), V(-43, 13, 0)),
    Part.LineSegment(V(-43, 13, 0), V(-60, 13, 0)),
    Part.LineSegment(V(-60, 13, 0), V(-43, 31, 0)),
], False)
sketch17.addConstraint([
    Sketcher.Constraint("Coincident", 0, 2, 1, 1),
    Sketcher.Constraint("Coincident", 1, 2, 2, 1),
    Sketcher.Constraint("Coincident", 2, 2, 0, 1),
    Sketcher.Constraint("Vertical", 0),
    Sketcher.Constraint("Horizontal", 1),
    Sketcher.Constraint("Equal", 1, 0),
    Sketcher.Constraint("DistanceY", -1, 1, 0, 2, 13.0),
    Sketcher.Constraint("Distance", 2, 25.065841),
    Sketcher.Constraint("DistanceX", 1, 2, -1, 1, 60.39146),
])
pad7 = body.newObject("PartDesign::Pad", "Pad006")
pad7.Profile = sketch17
pad7.Length = 5
pad7.Midplane = True

sketch18 = body.newObject("Sketcher::SketchObject", "Sketch017")
sketch18.AttachmentSupport = (doc.getObject("XZ_Plane"), [""])
sketch18.MapMode = "FlatFace"
sketch18.AttachmentOffset = App.Placement(V(0, 0, -20), App.Rotation())
sketch18.addGeometry([
    Part.LineSegment(V(-58, 15, 0), V(-45, 28, 0)),
    Part.LineSegment(V(-45, 28, 0), V(-45, 15, 0)),
    Part.LineSegment(V(-45, 15, 0), V(-58, 15, 0)),
], False)
sketch18.addConstraint([
    Sketcher.Constraint("Coincident", 0, 2, 1, 1),
    Sketcher.Constraint("Coincident", 1, 2, 2, 1),
    Sketcher.Constraint("Coincident", 2, 2, 0, 1),
    Sketcher.Constraint("Vertical", 1),
    Sketcher.Constraint("Horizontal", 2),
    Sketcher.Constraint("Equal", 2, 1),
    Sketcher.Constraint("DistanceX", 0, 2, -1, 1, 45.0),
    Sketcher.Constraint("DistanceY", -1, 1, 1, 2, 15.0),
    Sketcher.Constraint("DistanceX", 2, 2, 2, 1, 13.39146),
])
pad8 = body.newObject("PartDesign::Pad", "Pad007")
pad8.Profile = sketch18
pad8.Length = 5
pad8.Midplane = True
doc.recompute()

fillet4 = body.newObject("PartDesign::Fillet", "Fillet003")
fillet4.Base = (pad8, edges_at(pad8, [
    (-45.586, 17.5, 15.586),
    (-45.586, 22.5, 15.586),
    (-45, 20, 28.391),
    (-58.391, 20, 15),
    (-52.696, 22.5, 15),
    (-45, 22.5, 22.696),
    (-52.696, 17.5, 15),
    (-45, 17.5, 22.696),
]))
fillet4.Radius = 2

doc.recompute()
